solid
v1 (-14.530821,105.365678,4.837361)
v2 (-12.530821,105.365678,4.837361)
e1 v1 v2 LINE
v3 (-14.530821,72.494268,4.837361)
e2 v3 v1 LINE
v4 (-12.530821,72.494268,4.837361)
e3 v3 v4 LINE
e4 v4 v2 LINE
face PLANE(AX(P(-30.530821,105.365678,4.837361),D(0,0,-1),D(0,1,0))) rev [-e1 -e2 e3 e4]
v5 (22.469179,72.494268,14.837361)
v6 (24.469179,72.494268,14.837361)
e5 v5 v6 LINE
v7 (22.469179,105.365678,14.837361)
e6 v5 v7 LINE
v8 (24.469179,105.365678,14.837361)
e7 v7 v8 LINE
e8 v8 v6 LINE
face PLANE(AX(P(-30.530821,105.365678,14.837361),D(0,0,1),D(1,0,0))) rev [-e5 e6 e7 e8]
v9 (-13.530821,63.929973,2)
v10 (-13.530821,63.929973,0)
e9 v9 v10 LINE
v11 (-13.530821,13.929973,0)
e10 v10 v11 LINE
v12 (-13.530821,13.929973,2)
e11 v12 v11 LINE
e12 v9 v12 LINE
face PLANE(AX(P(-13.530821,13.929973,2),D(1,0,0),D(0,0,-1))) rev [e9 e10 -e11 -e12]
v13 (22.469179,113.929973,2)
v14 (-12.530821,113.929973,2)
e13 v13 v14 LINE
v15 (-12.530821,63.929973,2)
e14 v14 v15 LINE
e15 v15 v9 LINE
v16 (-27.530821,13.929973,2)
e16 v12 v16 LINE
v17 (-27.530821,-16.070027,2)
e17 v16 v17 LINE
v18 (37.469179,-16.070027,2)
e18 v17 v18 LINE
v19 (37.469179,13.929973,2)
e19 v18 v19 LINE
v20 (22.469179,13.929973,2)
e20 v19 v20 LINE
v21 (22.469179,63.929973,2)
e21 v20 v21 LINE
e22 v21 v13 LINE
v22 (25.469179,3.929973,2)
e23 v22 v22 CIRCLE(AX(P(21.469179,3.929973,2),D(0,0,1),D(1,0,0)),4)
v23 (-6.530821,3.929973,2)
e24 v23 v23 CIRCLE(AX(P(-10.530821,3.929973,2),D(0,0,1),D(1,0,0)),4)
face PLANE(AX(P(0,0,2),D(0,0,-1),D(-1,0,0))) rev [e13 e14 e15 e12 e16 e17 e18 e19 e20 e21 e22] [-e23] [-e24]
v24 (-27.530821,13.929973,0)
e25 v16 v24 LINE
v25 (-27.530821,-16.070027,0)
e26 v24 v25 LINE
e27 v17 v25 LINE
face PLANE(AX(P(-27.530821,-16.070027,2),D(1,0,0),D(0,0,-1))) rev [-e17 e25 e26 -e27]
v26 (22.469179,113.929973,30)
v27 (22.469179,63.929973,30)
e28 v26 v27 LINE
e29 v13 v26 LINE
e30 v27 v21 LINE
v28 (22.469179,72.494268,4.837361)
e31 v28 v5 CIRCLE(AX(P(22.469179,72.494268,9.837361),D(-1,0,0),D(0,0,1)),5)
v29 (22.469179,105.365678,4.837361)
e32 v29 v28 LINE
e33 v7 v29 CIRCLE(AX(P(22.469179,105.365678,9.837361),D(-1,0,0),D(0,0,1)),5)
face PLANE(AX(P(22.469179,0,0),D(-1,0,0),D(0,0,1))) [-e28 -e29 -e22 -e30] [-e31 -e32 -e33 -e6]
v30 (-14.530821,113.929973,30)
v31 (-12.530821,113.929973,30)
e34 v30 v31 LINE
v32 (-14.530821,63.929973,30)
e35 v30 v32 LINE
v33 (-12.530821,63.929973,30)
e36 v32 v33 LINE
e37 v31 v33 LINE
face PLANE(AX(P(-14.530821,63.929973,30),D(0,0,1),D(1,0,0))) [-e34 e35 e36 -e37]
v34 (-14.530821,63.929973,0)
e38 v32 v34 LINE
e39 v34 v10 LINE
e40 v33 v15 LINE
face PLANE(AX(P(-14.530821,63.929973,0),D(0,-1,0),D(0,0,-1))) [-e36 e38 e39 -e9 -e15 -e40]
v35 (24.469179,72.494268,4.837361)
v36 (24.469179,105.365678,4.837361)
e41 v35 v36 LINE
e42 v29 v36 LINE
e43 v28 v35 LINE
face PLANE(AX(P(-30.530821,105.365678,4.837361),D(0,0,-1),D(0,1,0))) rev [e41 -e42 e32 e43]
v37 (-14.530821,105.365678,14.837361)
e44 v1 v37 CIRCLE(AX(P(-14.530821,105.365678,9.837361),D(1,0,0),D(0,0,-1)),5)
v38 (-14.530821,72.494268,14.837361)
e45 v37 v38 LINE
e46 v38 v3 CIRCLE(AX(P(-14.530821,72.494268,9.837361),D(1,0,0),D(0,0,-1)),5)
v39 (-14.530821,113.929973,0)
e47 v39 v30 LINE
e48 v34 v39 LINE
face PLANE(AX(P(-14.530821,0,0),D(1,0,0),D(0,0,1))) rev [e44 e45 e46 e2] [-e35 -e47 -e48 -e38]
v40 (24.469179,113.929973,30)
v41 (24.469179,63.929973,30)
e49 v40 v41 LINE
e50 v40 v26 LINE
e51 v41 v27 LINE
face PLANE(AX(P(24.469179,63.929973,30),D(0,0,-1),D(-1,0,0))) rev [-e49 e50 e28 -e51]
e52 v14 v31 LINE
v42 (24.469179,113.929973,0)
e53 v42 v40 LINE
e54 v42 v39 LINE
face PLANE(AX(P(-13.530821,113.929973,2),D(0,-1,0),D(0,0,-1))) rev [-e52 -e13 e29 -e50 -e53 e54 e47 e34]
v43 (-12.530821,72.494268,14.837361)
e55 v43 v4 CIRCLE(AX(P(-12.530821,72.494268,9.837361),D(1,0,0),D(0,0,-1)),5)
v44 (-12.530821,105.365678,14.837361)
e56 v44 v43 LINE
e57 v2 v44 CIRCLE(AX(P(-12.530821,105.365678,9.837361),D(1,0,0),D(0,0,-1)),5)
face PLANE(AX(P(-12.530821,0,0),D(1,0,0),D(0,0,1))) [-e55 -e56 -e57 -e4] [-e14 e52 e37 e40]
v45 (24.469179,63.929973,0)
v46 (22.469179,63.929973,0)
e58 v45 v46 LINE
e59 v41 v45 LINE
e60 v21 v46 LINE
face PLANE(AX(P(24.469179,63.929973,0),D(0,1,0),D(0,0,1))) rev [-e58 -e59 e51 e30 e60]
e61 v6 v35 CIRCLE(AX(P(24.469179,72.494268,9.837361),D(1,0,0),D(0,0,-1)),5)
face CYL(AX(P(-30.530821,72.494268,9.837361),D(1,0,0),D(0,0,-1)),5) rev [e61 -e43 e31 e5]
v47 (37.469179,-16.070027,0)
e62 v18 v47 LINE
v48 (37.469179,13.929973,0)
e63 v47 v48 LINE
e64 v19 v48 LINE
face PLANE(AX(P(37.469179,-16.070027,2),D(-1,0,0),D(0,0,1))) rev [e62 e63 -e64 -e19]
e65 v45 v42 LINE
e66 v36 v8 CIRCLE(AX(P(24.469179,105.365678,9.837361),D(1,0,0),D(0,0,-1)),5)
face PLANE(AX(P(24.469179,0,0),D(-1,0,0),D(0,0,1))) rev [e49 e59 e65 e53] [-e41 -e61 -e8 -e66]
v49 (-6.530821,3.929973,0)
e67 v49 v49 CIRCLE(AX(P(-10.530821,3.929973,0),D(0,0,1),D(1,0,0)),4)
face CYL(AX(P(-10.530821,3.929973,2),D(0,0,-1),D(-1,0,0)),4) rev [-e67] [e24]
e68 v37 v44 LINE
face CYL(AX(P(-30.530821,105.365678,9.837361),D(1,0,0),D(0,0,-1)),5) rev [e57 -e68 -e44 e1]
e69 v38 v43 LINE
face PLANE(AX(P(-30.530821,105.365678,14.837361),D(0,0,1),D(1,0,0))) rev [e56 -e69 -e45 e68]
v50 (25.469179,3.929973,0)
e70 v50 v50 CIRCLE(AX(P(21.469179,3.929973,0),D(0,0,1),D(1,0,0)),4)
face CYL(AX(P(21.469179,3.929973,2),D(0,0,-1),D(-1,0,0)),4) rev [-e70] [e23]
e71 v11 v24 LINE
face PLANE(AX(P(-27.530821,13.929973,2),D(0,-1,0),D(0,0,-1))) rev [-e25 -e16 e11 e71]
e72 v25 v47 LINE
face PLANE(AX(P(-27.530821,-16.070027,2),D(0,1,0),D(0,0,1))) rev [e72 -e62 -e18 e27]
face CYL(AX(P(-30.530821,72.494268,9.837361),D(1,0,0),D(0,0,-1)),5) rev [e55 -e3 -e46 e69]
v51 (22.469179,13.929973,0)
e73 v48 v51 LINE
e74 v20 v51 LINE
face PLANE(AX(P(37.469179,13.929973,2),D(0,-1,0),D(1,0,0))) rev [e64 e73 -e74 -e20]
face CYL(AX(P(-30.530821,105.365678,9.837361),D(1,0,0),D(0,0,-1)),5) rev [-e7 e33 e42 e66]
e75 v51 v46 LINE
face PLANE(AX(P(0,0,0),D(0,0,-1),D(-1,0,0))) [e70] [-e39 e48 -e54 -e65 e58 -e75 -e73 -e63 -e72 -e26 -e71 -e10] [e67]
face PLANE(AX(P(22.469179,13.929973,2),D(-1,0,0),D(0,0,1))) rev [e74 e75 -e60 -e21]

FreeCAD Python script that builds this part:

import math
import FreeCAD as App
import Part
import Sketcher

doc = App.newDocument("Part")
body = doc.addObject("PartDesign::Body", "Body")

sketch1 = body.newObject("Sketcher::SketchObject", "Sketch")
sketch1.AttachmentSupport = (doc.getObject("XY_Plane"), [""])
sketch1.MapMode = "FlatFace"
sketch1.addGeometry([
    Part.LineSegment(App.Vector(-27.5, -16.1, 0), App.Vector(37.5, -16.1, 0)),
    Part.LineSegment(App.Vector(37.5, -16.1, 0), App.Vector(37.5, 13.9, 0)),
    Part.LineSegment(App.Vector(37.5, 13.9, 0), App.Vector(22.5, 13.9, 0)),
    Part.LineSegment(App.Vector(22.5, 13.9, 0), App.Vector(22.5, 113.9, 0)),
    Part.LineSegment(App.Vector(22.5, 113.9, 0), App.Vector(-13.5, 113.9, 0)),
    Part.LineSegment(App.Vector(-13.5, 113.9, 0), App.Vector(-13.5, 13.9, 0)),
    Part.LineSegment(App.Vector(-13.5, 13.9, 0), App.Vector(-27.5, 13.9, 0)),
    Part.LineSegment(App.Vector(-27.5, 13.9, 0), App.Vector(-27.5, -16.1, 0)),
    Part.Circle(App.Vector(-10.5, 3.9, 0), App.Vector(0, 0, 1), 4),
    Part.Circle(App.Vector(21.5, 3.9, 0), App.Vector(0, 0, 1), 4),
], False)
sketch1.addConstraint([
    Sketcher.Constraint("Coincident", 0, 2, 1, 1),
    Sketcher.Constraint("Coincident", 1, 2, 2, 1),
    Sketcher.Constraint("Coincident", 2, 2, 3, 1),
    Sketcher.Constraint("Coincident", 3, 2, 4, 1),
    Sketcher.Constraint("Coincident", 4, 2, 5, 1),
    Sketcher.Constraint("Coincident", 5, 2, 6, 1),
    Sketcher.Constraint("Coincident", 6, 2, 7, 1),
    Sketcher.Constraint("Coincident", 7, 2, 0, 1),
    Sketcher.Constraint("Horizontal", 0),
    Sketcher.Constraint("Vertical", 1),
    Sketcher.Constraint("Horizontal", 2),
    Sketcher.Constraint("Vertical", 3),
    Sketcher.Constraint("Horizontal", 4),
    Sketcher.Constraint("Vertical", 5),
    Sketcher.Constraint("Horizontal", 6),
    Sketcher.Constraint("Vertical", 7),
    Sketcher.Constraint("Equal", 8, 9),
    Sketcher.Constraint("Horizontal", 8, 3, 9, 3),
    Sketcher.Constraint("Horizontal", 2, 2, 5, 2),
    Sketcher.Constraint("Diameter", 8, 8.0),
    Sketcher.Constraint("DistanceX", 0, 1, 0, 2, 65.0),
    Sketcher.Constraint("DistanceX", 2, 2, 2, 1, 15.0),
    Sketcher.Constraint("DistanceX", 4, 2, 4, 1, 36.0),
    Sketcher.Constraint("DistanceY", 1, 1, 1, 2, 30.0),
    Sketcher.Constraint("DistanceY", 3, 1, 3, 2, 100.0),
    Sketcher.Constraint("DistanceX", 8, 3, 9, 3, 32.0),
    Sketcher.Constraint("DistanceX", 9, 3, 0, 2, 16.0),
    Sketcher.Constraint("DistanceY", 0, 2, 9, 3, 20.0),
    Sketcher.Constraint("DistanceX", 8, 3, -1, 1, 10.530821),
    Sketcher.Constraint("DistanceY", -1, 1, 8, 3, 3.929973),
])
pad1 = body.newObject("PartDesign::Pad", "Pad")
pad1.Profile = sketch1
pad1.Length = 2

sketch2 = body.newObject("Sketcher::SketchObject", "Sketch001")
sketch2.AttachmentSupport = (doc.getObject("YZ_Plane"), [""])
sketch2.MapMode = "FlatFace"
sketch2.AttachmentOffset = App.Placement(App.Vector(0, 0, 22.469179), App.Rotation())
sketch2.addGeometry([
    Part.LineSegment(App.Vector(114, 30, 0), App.Vector(64, 30, 0)),
    Part.LineSegment(App.Vector(64, 30, 0), App.Vector(64, 0, 0)),
    Part.LineSegment(App.Vector(64, 0, 0), App.Vector(114, 0, 0)),
    Part.LineSegment(App.Vector(114, 0, 0), App.Vector(114, 30, 0)),
], False)
sketch2.addConstraint([
    Sketcher.Constraint("Coincident", 0, 2, 1, 1),
    Sketcher.Constraint("Coincident", 1, 2, 2, 1),
    Sketcher.Constraint("Coincident", 2, 2, 3, 1),
    Sketcher.Constraint("Coincident", 3, 2, 0, 1),
    Sketcher.Constraint("Horizontal", 0),
    Sketcher.Constraint("Vertical", 1),
    Sketcher.Constraint("Horizontal", 2),
    Sketcher.Constraint("Vertical", 3),
    Sketcher.Constraint("PointOnObject", 1, 2, -1),
    Sketcher.Constraint("DistanceX", 0, 2, 0, 1, 50.0),
    Sketcher.Constraint("DistanceY", 1, 2, 1, 1, 30.0),
    Sketcher.Constraint("DistanceX", -1, 1, 0, 2, 63.929973),
])
pad2 = body.newObject("PartDesign::Pad", "Pad001")
pad2.Profile = sketch2
pad2.Length = 2
doc.recompute()

datumplane = body.newObject("PartDesign::Plane", "DatumPlane")
datumplane.AttachmentSupport = (doc.getObject("YZ_Plane"), [""])
datumplane.MapMode = "FlatFace"
datumplane.AttachmentOffset = App.Placement(App.Vector(0, 0, 4.969179), App.Rotation())
mirrored = body.newObject("PartDesign::Mirrored", "Mirrored")
mirrored.Originals = [pad2]
mirrored.MirrorPlane = (datumplane, [""])
body.Tip = mirrored

sketch3 = body.newObject("Sketcher::SketchObject", "Sketch002")
sketch3.AttachmentSupport = (doc.getObject("YZ_Plane"), [""])
sketch3.MapMode = "FlatFace"
sketch3.AttachmentOffset = App.Placement(App.Vector(0, 0, 24.469179), App.Rotation())
sketch3.addGeometry([
    Part.LineSegment(App.Vector(105, 15, 0), App.Vector(72, 15, 0)),
    Part.ArcOfCircle(Part.Circle(App.Vector(72, 10, 0), App.Vector(0, 0, 1), 5), math.radians(90), math.radians(270)),
    Part.LineSegment(App.Vector(72, 5, 0), App.Vector(105, 5, 0)),
    Part.ArcOfCircle(Part.Circle(App.Vector(105, 10, 0), App.Vector(0, 0, 1), 5), math.radians(-90), math.radians(90)),
], False)
sketch3.addConstraint([
    Sketcher.Constraint("Tangent", 0, 2, 1, 1),
    Sketcher.Constraint("Tangent", 1, 2, 2, 1),
    Sketcher.Constraint("Tangent", 2, 2, 3, 1),
    Sketcher.Constraint("Tangent", 3, 2, 0, 1),
    Sketcher.Constraint("Horizontal", 0),
    Sketcher.Constraint("Horizontal", 2),
    Sketcher.Constraint("Radius", 1, 5.0),
    Sketcher.Constraint("DistanceX", 0, 2, 0, 1, 32.871409),
    Sketcher.Constraint("DistanceX", -1, 1, 1, 3, 72.494268),
    Sketcher.Constraint("DistanceY", -1, 1, 1, 3, 9.837361),
])
pocket1 = body.newObject("PartDesign::Pocket", "Pocket")
pocket1.Profile = sketch3
pocket1.Length = 55

doc.recompute()
